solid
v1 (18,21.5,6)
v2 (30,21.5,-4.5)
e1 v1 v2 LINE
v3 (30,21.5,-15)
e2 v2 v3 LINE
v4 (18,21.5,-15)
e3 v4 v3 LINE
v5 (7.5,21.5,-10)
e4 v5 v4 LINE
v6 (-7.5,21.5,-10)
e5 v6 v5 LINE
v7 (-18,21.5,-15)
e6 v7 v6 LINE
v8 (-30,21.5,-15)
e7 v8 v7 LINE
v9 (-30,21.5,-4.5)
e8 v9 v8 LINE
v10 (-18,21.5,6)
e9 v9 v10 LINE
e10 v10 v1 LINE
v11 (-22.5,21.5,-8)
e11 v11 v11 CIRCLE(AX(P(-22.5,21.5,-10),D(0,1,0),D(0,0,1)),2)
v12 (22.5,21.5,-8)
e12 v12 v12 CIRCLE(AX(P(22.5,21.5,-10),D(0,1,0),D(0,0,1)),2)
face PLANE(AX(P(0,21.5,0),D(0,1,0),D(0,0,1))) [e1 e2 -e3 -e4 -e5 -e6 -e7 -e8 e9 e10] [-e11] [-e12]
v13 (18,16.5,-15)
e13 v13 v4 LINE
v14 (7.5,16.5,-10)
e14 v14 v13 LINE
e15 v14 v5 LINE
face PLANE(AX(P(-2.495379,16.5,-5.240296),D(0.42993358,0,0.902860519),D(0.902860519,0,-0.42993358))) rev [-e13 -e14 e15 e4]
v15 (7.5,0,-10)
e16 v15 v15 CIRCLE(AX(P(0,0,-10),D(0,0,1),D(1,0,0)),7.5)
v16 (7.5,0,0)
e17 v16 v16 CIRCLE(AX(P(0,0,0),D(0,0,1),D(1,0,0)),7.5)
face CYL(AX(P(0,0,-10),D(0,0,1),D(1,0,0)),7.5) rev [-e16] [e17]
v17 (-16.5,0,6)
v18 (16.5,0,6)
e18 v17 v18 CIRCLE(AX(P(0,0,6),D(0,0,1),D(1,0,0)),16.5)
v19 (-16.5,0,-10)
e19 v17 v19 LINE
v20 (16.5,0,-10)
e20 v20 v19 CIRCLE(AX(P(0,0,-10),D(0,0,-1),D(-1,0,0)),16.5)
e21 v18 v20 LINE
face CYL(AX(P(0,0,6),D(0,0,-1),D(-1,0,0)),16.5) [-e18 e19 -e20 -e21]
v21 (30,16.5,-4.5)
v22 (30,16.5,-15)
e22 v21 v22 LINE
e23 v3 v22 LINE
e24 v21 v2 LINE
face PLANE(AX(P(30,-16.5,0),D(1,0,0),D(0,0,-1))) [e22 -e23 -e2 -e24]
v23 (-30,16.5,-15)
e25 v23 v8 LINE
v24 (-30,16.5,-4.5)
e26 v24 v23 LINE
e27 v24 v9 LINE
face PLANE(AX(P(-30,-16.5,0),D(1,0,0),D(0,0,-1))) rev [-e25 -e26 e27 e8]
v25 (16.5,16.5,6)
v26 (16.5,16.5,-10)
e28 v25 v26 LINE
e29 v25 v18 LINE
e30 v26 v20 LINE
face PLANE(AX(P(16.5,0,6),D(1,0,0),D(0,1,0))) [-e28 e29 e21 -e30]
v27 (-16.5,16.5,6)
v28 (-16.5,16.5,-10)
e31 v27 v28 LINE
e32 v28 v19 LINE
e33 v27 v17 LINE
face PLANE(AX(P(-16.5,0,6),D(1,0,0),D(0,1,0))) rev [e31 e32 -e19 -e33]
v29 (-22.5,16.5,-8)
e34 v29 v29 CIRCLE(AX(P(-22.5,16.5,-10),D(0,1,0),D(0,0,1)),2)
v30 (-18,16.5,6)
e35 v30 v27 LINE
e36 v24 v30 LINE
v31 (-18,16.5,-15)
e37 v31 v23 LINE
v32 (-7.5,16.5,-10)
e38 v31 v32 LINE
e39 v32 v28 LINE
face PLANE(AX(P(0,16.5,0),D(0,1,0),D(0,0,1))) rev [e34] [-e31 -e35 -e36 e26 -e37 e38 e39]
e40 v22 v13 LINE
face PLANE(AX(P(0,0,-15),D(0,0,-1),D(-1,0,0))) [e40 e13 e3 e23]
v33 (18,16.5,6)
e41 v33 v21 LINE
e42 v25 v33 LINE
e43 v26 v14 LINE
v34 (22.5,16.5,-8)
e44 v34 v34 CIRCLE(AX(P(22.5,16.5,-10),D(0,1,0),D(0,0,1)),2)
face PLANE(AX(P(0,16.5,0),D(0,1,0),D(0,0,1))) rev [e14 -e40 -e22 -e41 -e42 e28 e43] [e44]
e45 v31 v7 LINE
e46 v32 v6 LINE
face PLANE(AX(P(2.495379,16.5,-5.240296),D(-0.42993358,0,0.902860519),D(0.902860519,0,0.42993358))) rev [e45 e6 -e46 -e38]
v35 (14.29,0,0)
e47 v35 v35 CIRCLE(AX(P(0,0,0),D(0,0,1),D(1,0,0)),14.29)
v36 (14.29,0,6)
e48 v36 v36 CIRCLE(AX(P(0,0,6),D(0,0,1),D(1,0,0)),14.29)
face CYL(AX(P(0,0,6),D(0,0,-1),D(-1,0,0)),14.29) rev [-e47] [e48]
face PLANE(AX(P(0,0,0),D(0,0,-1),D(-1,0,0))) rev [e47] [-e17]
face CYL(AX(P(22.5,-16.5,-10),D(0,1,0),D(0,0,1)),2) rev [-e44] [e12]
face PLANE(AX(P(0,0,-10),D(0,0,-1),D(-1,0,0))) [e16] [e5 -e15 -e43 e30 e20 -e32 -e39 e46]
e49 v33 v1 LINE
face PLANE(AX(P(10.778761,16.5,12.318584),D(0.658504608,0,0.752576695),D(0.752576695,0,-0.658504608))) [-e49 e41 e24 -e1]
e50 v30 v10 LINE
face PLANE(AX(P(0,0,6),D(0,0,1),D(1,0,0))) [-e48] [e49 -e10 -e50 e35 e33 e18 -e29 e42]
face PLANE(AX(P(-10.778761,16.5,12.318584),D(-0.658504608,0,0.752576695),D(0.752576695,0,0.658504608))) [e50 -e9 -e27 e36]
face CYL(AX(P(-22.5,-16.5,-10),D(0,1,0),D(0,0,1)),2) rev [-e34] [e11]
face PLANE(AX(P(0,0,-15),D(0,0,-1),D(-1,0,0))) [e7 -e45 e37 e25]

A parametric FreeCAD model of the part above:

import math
import FreeCAD as App
import Part
import Sketcher


def add_polygon(sketch, points):
    """Adds a closed chain of lines whose ends are joined by coincident constraints."""
    first, n = sketch.GeometryCount, len(points)
    for a, b in zip(points, points[1:] + points[:1]):
        sketch.addGeometry(Part.LineSegment(App.Vector(*a, 0), App.Vector(*b, 0)), False)
    for i in range(n):
        sketch.addConstraint(Sketcher.Constraint("Coincident", first + i, 2, first + (i + 1) % n, 1))

doc = App.newDocument("Part")
body = doc.addObject("PartDesign::Body", "Body")

sketch1 = body.newObject("Sketcher::SketchObject", "Sketch")
sketch1.AttachmentSupport = (doc.getObject("XY_Plane"), [""])
sketch1.MapMode = "FlatFace"
sketch1.addGeometry(Part.Circle(App.Vector(0, 0, 0), App.Vector(0, 0, 1), 16), False)
sketch1.addGeometry(Part.Circle(App.Vector(0, 0, 0), App.Vector(0, 0, 1), 14), False)
sketch1.addConstraint(Sketcher.Constraint("Coincident", 0, 3, -1, 1))
sketch1.addConstraint(Sketcher.Constraint("Coincident", 1, 3, -1, 1))
sketch1.addConstraint(Sketcher.Constraint("Diameter", 0, 33.0))
sketch1.addConstraint(Sketcher.Constraint("Diameter", 1, 28.58))
pad1 = body.newObject("PartDesign::Pad", "Pad")
pad1.Profile = sketch1
pad1.Length = 6

sketch2 = body.newObject("Sketcher::SketchObject", "Sketch001")
sketch2.AttachmentSupport = (doc.getObject("XY_Plane"), [""])
sketch2.MapMode = "FlatFace"
sketch2.AttachmentOffset = App.Placement(App.Vector(0, 0, -10), App.Rotation())
sketch2.addGeometry(Part.Circle(App.Vector(0, 0, 0), App.Vector(0, 0, 1), 16), False)
sketch2.addConstraint(Sketcher.Constraint("Coincident", 0, 3, -1, 1))
sketch2.addConstraint(Sketcher.Constraint("Diameter", 0, 33.0))
pad2 = body.newObject("PartDesign::Pad", "Pad001")
pad2.Profile = sketch2
pad2.Length = 10
body2 = doc.addObject("PartDesign::Body", "Body001")

sketch3 = body2.newObject("Sketcher::SketchObject", "Sketch002")
sketch3.AttachmentSupport = (doc.getObject("XZ_Plane001"), [""])
sketch3.MapMode = "FlatFace"
sketch3.AttachmentOffset = App.Placement(App.Vector(0, 0, -16.5), App.Rotation())
add_polygon(sketch3, [(40, -10), (-40, -10), (-40, 10), (40, 10)])
sketch3.addConstraint(Sketcher.Constraint("Horizontal", 0))
sketch3.addConstraint(Sketcher.Constraint("Vertical", 1))
sketch3.addConstraint(Sketcher.Constraint("Horizontal", 2))
sketch3.addConstraint(Sketcher.Constraint("Vertical", 3))
sketch3.addConstraint(Sketcher.Constraint("Symmetric", 0, 2, 2, 2, -1, 1))
sketch3.addConstraint(Sketcher.Constraint("DistanceX", 0, 2, 0, 1, 80.0))
sketch3.addConstraint(Sketcher.Constraint("DistanceY", 1, 1, 1, 2, 20.0))
pad3 = body2.newObject("PartDesign::Pad", "Pad002")
pad3.Profile = sketch3
pad3.Length = 5
pad3.Reversed = True
body.AllowCompound = True
doc.recompute()

boolean = body.newObject("PartDesign::Boolean", "Boolean")
boolean.Type = "Fuse"
boolean.addObjects([body2])

sketch4 = body.newObject("Sketcher::SketchObject", "Sketch003")
sketch4.AttachmentSupport = (doc.getObject("XY_Plane"), [""])
sketch4.MapMode = "FlatFace"
sketch4.AttachmentOffset = App.Placement(App.Vector(0, 0, -10), App.Rotation())
sketch4.addGeometry(Part.ArcOfCircle(Part.Circle(App.Vector(0, 0, 0), App.Vector(0, 0, 1), 16), math.radians(90), math.radians(180)), False)
sketch4.addGeometry(Part.LineSegment(App.Vector(0, 16, 0), App.Vector(-16, 16, 0)), False)
sketch4.addGeometry(Part.LineSegment(App.Vector(-16, 16, 0), App.Vector(-16, 0, 0)), False)
sketch4.addGeometry(Part.ArcOfCircle(Part.Circle(App.Vector(0, 0, 0), App.Vector(0, 0, 1), 16), math.radians(0), math.radians(90)), False)
sketch4.addGeometry(Part.LineSegment(App.Vector(16, 0, 0), App.Vector(16, 16, 0)), False)
sketch4.addGeometry(Part.LineSegment(App.Vector(16, 16, 0), App.Vector(0, 16, 0)), False)
sketch4.addConstraint(Sketcher.Constraint("Tangent", 0, 1, 1, 1))
sketch4.addConstraint(Sketcher.Constraint("Coincident", 1, 2, 2, 1))
sketch4.addConstraint(Sketcher.Constraint("Tangent", 2, 2, 0, 2))
sketch4.addConstraint(Sketcher.Constraint("Tangent", 3, 1, 4, 1))
sketch4.addConstraint(Sketcher.Constraint("Coincident", 4, 2, 5, 1))
sketch4.addConstraint(Sketcher.Constraint("Tangent", 5, 2, 3, 2))
sketch4.addConstraint(Sketcher.Constraint("Horizontal", 1))
sketch4.addConstraint(Sketcher.Constraint("Vertical", 2))
sketch4.addConstraint(Sketcher.Constraint("Vertical", 4))
sketch4.addConstraint(Sketcher.Constraint("Horizontal", 5))
sketch4.addConstraint(Sketcher.Constraint("Coincident", 0, 3, -1, 1))
sketch4.addConstraint(Sketcher.Constraint("Coincident", 3, 3, -1, 1))
sketch4.addConstraint(Sketcher.Constraint("Equal", 0, 3))
sketch4.addConstraint(Sketcher.Constraint("Radius", 0, 16.5))
pad4 = body.newObject("PartDesign::Pad", "Pad003")
pad4.Profile = sketch4
pad4.Length = 16

sketch5 = body.newObject("Sketcher::SketchObject", "Sketch004")
sketch5.AttachmentSupport = (doc.getObject("XZ_Plane"), [""])
sketch5.MapMode = "FlatFace"
sketch5.AttachmentOffset = App.Placement(App.Vector(0, 0, -21.5), App.Rotation())
add_polygon(sketch5, [(-40, 10), (40, 10), (40, -10), (30, -10), (30, 6), (-30, 6), (-30, -10), (-40, -10)])
sketch5.addGeometry(Part.Circle(App.Vector(22.5, -10, 0), App.Vector(0, 0, 1), 2), False)
sketch5.addGeometry(Part.Circle(App.Vector(-22.5, -10, 0), App.Vector(0, 0, 1), 2), False)
sketch5.addConstraint(Sketcher.Constraint("Horizontal", 0))
sketch5.addConstraint(Sketcher.Constraint("Vertical", 1))
sketch5.addConstraint(Sketcher.Constraint("Horizontal", 2))
sketch5.addConstraint(Sketcher.Constraint("Vertical", 3))
sketch5.addConstraint(Sketcher.Constraint("Horizontal", 4))
sketch5.addConstraint(Sketcher.Constraint("Vertical", 5))
sketch5.addConstraint(Sketcher.Constraint("Horizontal", 6))
sketch5.addConstraint(Sketcher.Constraint("Vertical", 7))
sketch5.addConstraint(Sketcher.Constraint("Equal", 8, 9))
sketch5.addConstraint(Sketcher.Constraint("Symmetric", 0, 2, 6, 2, -1, 1))
sketch5.addConstraint(Sketcher.Constraint("Symmetric", 8, 3, 9, 3, -2))
sketch5.addConstraint(Sketcher.Constraint("Symmetric", 2, 2, 5, 2, -2))
sketch5.addConstraint(Sketcher.Constraint("Horizontal", 9, 3, 1, 2))
sketch5.addConstraint(Sketcher.Constraint("Diameter", 8, 4.0))
sketch5.addConstraint(Sketcher.Constraint("DistanceX", 0, 1, 0, 2, 80.0))
sketch5.addConstraint(Sketcher.Constraint("DistanceX", 2, 2, 2, 1, 10.0))
sketch5.addConstraint(Sketcher.Constraint("DistanceY", 1, 2, 1, 1, 20.0))
sketch5.addConstraint(Sketcher.Constraint("DistanceY", 3, 1, 3, 2, 16.0))
sketch5.addConstraint(Sketcher.Constraint("DistanceX", 9, 3, 8, 3, 45.0))
pocket1 = body.newObject("PartDesign::Pocket", "Pocket")
pocket1.Profile = sketch5
pocket1.Type = "ThroughAll"
pocket1.Reversed = True

sketch6 = body.newObject("Sketcher::SketchObject", "Sketch005")
sketch6.AttachmentSupport = (doc.getObject("XY_Plane"), [""])
sketch6.MapMode = "FlatFace"
sketch6.addGeometry(Part.Circle(App.Vector(0, 0, 0), App.Vector(0, 0, 1), 8), False)
sketch6.addConstraint(Sketcher.Constraint("Coincident", 0, 3, -1, 1))
sketch6.addConstraint(Sketcher.Constraint("Diameter", 0, 15.0))
pocket2 = body.newObject("PartDesign::Pocket", "Pocket001")
pocket2.Profile = sketch6
pocket2.Type = "ThroughAll"

sketch7 = body.newObject("Sketcher::SketchObject", "Sketch006")
sketch7.AttachmentSupport = (doc.getObject("XY_Plane"), [""])
sketch7.MapMode = "FlatFace"
sketch7.AttachmentOffset = App.Placement(App.Vector(0, 0, -10), App.Rotation())
add_polygon(sketch7, [(30, 22), (30, 16), (-30, 16), (-30, 22)])
sketch7.addConstraint(Sketcher.Constraint("Vertical", 0))
sketch7.addConstraint(Sketcher.Constraint("Horizontal", 1))
sketch7.addConstraint(Sketcher.Constraint("Vertical", 2))
sketch7.addConstraint(Sketcher.Constraint("Horizontal", 3))
sketch7.addConstraint(Sketcher.Constraint("DistanceX", 1, 2, 1, 1, 60.0))
sketch7.addConstraint(Sketcher.Constraint("DistanceY", 0, 2, 0, 1, 5.0))
sketch7.addConstraint(Sketcher.Constraint("DistanceX", -1, 1, 0, 2, 30.0))
sketch7.addConstraint(Sketcher.Constraint("DistanceY", -1, 1, 0, 2, 16.5))
pad5 = body.newObject("PartDesign::Pad", "Pad004")
pad5.Profile = sketch7
pad5.Length = 5
pad5.Reversed = True

sketch8 = body.newObject("Sketcher::SketchObject", "Sketch007")
sketch8.AttachmentSupport = (doc.getObject("XZ_Plane"), [""])
sketch8.MapMode = "FlatFace"
sketch8.AttachmentOffset = App.Placement(App.Vector(0, 0, -21.5), App.Rotation())
add_polygon(sketch8, [(-18, 6), (-30, -4.5), (-30, 6)])
add_polygon(sketch8, [(30, -4.5), (18, 6), (30, 6)])
sketch8.addGeometry(Part.Circle(App.Vector(22.5, -10, 0), App.Vector(0, 0, 1), 2), False)
sketch8.addGeometry(Part.Circle(App.Vector(-22.5, -10, 0), App.Vector(0, 0, 1), 2), False)
add_polygon(sketch8, [(-18, -15), (-7.5, -10), (7.5, -10), (18, -15)])
sketch8.addConstraint(Sketcher.Constraint("Vertical", 1))
sketch8.addConstraint(Sketcher.Constraint("Horizontal", 2))
sketch8.addConstraint(Sketcher.Constraint("Horizontal", 4))
sketch8.addConstraint(Sketcher.Constraint("Vertical", 5))
sketch8.addConstraint(Sketcher.Constraint("Horizontal", 9))
sketch8.addConstraint(Sketcher.Constraint("Horizontal", 11))
sketch8.addConstraint(Sketcher.Constraint("Equal", 6, 7))
sketch8.addConstraint(Sketcher.Constraint("Symmetric", 6, 3, 7, 3, -2))
sketch8.addConstraint(Sketcher.Constraint("Symmetric", 2, 2, 3, 2, -2))
sketch8.addConstraint(Sketcher.Constraint("Symmetric", 0, 2, 5, 2, -2))
sketch8.addConstraint(Sketcher.Constraint("Horizontal", 7, 3, 8, 2))
sketch8.addConstraint(Sketcher.Constraint("Vertical", 3, 2, 10, 2))
sketch8.addConstraint(Sketcher.Constraint("Vertical", 2, 2, 11, 2))
sketch8.addConstraint(Sketcher.Constraint("Equal", 8, 10))
sketch8.addConstraint(Sketcher.Constraint("Diameter", 6, 4.0))
sketch8.addConstraint(Sketcher.Constraint("DistanceX", 2, 1, 2, 2, 12.0))
sketch8.addConstraint(Sketcher.Constraint("DistanceX", 9, 1, 9, 2, 15.0))
sketch8.addConstraint(Sketcher.Constraint("DistanceX", 11, 2, 11, 1, 36.0))
sketch8.addConstraint(Sketcher.Constraint("DistanceY", 1, 1, 1, 2, 10.5))
sketch8.addConstraint(Sketcher.Constraint("DistanceY", 6, 3, -1, 1, 10.0))
sketch8.addConstraint(Sketcher.Constraint("DistanceY", -1, 1, 1, 2, 6.0))
sketch8.addConstraint(Sketcher.Constraint("DistanceY", 10, 2, -1, 1, 15.0))
sketch8.addConstraint(Sketcher.Constraint("DistanceX", 7, 3, 6, 3, 45.0))
pocket3 = body.newObject("PartDesign::Pocket", "Pocket002")
pocket3.Profile = sketch8
pocket3.Length = 5
pocket3.Reversed = True

doc.recompute()
